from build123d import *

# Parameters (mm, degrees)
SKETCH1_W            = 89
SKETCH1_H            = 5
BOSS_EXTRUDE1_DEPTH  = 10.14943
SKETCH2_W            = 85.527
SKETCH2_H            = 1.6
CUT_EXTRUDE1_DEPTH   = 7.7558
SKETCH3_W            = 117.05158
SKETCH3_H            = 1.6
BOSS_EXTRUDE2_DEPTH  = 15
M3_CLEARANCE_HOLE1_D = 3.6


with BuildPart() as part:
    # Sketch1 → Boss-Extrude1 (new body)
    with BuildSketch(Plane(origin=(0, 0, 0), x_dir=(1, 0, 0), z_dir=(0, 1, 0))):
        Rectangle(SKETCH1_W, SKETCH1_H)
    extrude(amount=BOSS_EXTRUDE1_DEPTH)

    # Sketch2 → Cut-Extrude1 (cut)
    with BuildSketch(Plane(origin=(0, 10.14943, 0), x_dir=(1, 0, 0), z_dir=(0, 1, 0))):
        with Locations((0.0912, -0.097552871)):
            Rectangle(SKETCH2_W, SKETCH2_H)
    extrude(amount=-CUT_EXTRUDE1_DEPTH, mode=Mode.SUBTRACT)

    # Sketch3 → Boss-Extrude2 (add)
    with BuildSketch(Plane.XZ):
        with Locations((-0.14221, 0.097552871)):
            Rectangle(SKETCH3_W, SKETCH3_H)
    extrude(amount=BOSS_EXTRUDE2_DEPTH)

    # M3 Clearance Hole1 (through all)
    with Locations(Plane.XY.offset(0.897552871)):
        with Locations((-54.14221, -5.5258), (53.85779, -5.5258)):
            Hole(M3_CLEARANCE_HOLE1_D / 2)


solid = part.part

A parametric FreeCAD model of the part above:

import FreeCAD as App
import Part
import Sketcher
Q = App.Units.Quantity


def add_polygon(sketch, points):
    """Adds a closed chain of lines whose ends are joined by coincident constraints."""
    first, n = sketch.GeometryCount, len(points)
    for a, b in zip(points, points[1:] + points[:1]):
        sketch.addGeometry(Part.LineSegment(App.Vector(*a, 0), App.Vector(*b, 0)), False)
    for i in range(n):
        sketch.addConstraint(Sketcher.Constraint("Coincident", first + i, 2, first + (i + 1) % n, 1))

doc = App.newDocument("Part")
body = doc.addObject("PartDesign::Body", "Body")

sketch1 = doc.addObject("Sketcher::SketchObject", "Sketch")
body.addObject(sketch1)
sketch1.AttachmentSupport = (doc.XZ_Plane, [""])
sketch1.MapMode = "FlatFace"
add_polygon(sketch1, [(-44, -2), (-44, 2), (44, 2), (44, -2)])
sketch1.addConstraint(Sketcher.Constraint("Vertical", 0))
sketch1.addConstraint(Sketcher.Constraint("Horizontal", 1))
sketch1.addConstraint(Sketcher.Constraint("Vertical", 2))
sketch1.addConstraint(Sketcher.Constraint("Horizontal", 3))
sketch1.addConstraint(Sketcher.Constraint("Symmetric", 0, 2, 2, 2, -1, 1))
sketch1.addConstraint(Sketcher.Constraint("DistanceX", 1, 1, 1, 2, Q("89 mm")))
sketch1.addConstraint(Sketcher.Constraint("DistanceY", 0, 1, 0, 2, Q("5 mm")))
pad1 = doc.addObject("PartDesign::Pad", "Pad")
body.addObject(pad1)
pad1.Profile = sketch1
pad1.Length = 10.14943
pad1.Reversed = True

sketch2 = doc.addObject("Sketcher::SketchObject", "Sketch001")
body.addObject(sketch2)
sketch2.AttachmentSupport = (doc.XZ_Plane, [""])
sketch2.MapMode = "FlatFace"
sketch2.AttachmentOffset = App.Placement(App.Vector(0, 0, -10.14943), App.Rotation())
add_polygon(sketch2, [(-42.7, -0.7), (-42.7, 0.9), (42.9, 0.9), (42.9, -0.7)])
sketch2.addConstraint(Sketcher.Constraint("Vertical", 0))
sketch2.addConstraint(Sketcher.Constraint("Horizontal", 1))
sketch2.addConstraint(Sketcher.Constraint("Vertical", 2))
sketch2.addConstraint(Sketcher.Constraint("Horizontal", 3))
sketch2.addConstraint(Sketcher.Constraint("DistanceY", 0, 1, 0, 2, Q("1.6 mm")))
sketch2.addConstraint(Sketcher.Constraint("DistanceX", 1, 1, 1, 2, Q("85.527 mm")))
sketch2.addConstraint(Sketcher.Constraint("DistanceX", 0, 2, -1, 1, Q("42.6723 mm")))
sketch2.addConstraint(Sketcher.Constraint("DistanceY", -1, 1, 0, 2, Q("0.897553 mm")))
pocket1 = doc.addObject("PartDesign::Pocket", "Pocket")
body.addObject(pocket1)
pocket1.Profile = sketch2
pocket1.Length = 7.7558
pocket1.Reversed = True

sketch3 = doc.addObject("Sketcher::SketchObject", "Sketch002")
body.addObject(sketch3)
sketch3.AttachmentSupport = (doc.XZ_Plane, [""])
sketch3.MapMode = "FlatFace"
add_polygon(sketch3, [(-58.7, 0.9), (-58.7, -0.7), (58.4, -0.7), (58.4, 0.9)])
sketch3.addConstraint(Sketcher.Constraint("Vertical", 0))
sketch3.addConstraint(Sketcher.Constraint("Horizontal", 1))
sketch3.addConstraint(Sketcher.Constraint("Vertical", 2))
sketch3.addConstraint(Sketcher.Constraint("Horizontal", 3))
sketch3.addConstraint(Sketcher.Constraint("DistanceY", 0, 2, 0, 1, Q("1.6 mm")))
sketch3.addConstraint(Sketcher.Constraint("DistanceX", 0, 2, -1, 1, Q("58.668 mm")))
sketch3.addConstraint(Sketcher.Constraint("DistanceX", 1, 1, 1, 2, Q("117.05158 mm")))
sketch3.addConstraint(Sketcher.Constraint("DistanceY", 0, 2, -1, 1, Q("0.702447 mm")))
pad2 = doc.addObject("PartDesign::Pad", "Pad001")
body.addObject(pad2)
pad2.Profile = sketch3
pad2.Length = 15

sketch4 = doc.addObject("Sketcher::SketchObject", "Sketch003")
body.addObject(sketch4)
sketch4.AttachmentSupport = (doc.XY_Plane, [""])
sketch4.MapMode = "FlatFace"
sketch4.AttachmentOffset = App.Placement(App.Vector(0, 0, 0.897553), App.Rotation())
sketch4.addGeometry(Part.Circle(App.Vector(-54.1, -5.5, 0), App.Vector(0, 0, 1), 1.8), False)
sketch4.addGeometry(Part.Circle(App.Vector(53.9, -5.5, 0), App.Vector(0, 0, 1), 1.8), False)
sketch4.addConstraint(Sketcher.Constraint("Equal", 0, 1))
sketch4.addConstraint(Sketcher.Constraint("Horizontal", 0, 3, 1, 3))
sketch4.addConstraint(Sketcher.Constraint("Diameter", 0, Q("3.6 mm")))
sketch4.addConstraint(Sketcher.Constraint("DistanceX", 0, 3, 1, 3, Q("108 mm")))
sketch4.addConstraint(Sketcher.Constraint("DistanceY", 0, 3, -1, 1, Q("5.5258 mm")))
sketch4.addConstraint(Sketcher.Constraint("DistanceX", 0, 3, -1, 1, Q("54.14221 mm")))
doc.recompute()
hole = doc.addObject("PartDesign::Hole", "Hole")
body.addObject(hole)
hole.Profile = sketch4
hole.ThreadType = "None"
hole.Diameter = 3.6
hole.DepthType = "ThroughAll"

doc.recompute()
